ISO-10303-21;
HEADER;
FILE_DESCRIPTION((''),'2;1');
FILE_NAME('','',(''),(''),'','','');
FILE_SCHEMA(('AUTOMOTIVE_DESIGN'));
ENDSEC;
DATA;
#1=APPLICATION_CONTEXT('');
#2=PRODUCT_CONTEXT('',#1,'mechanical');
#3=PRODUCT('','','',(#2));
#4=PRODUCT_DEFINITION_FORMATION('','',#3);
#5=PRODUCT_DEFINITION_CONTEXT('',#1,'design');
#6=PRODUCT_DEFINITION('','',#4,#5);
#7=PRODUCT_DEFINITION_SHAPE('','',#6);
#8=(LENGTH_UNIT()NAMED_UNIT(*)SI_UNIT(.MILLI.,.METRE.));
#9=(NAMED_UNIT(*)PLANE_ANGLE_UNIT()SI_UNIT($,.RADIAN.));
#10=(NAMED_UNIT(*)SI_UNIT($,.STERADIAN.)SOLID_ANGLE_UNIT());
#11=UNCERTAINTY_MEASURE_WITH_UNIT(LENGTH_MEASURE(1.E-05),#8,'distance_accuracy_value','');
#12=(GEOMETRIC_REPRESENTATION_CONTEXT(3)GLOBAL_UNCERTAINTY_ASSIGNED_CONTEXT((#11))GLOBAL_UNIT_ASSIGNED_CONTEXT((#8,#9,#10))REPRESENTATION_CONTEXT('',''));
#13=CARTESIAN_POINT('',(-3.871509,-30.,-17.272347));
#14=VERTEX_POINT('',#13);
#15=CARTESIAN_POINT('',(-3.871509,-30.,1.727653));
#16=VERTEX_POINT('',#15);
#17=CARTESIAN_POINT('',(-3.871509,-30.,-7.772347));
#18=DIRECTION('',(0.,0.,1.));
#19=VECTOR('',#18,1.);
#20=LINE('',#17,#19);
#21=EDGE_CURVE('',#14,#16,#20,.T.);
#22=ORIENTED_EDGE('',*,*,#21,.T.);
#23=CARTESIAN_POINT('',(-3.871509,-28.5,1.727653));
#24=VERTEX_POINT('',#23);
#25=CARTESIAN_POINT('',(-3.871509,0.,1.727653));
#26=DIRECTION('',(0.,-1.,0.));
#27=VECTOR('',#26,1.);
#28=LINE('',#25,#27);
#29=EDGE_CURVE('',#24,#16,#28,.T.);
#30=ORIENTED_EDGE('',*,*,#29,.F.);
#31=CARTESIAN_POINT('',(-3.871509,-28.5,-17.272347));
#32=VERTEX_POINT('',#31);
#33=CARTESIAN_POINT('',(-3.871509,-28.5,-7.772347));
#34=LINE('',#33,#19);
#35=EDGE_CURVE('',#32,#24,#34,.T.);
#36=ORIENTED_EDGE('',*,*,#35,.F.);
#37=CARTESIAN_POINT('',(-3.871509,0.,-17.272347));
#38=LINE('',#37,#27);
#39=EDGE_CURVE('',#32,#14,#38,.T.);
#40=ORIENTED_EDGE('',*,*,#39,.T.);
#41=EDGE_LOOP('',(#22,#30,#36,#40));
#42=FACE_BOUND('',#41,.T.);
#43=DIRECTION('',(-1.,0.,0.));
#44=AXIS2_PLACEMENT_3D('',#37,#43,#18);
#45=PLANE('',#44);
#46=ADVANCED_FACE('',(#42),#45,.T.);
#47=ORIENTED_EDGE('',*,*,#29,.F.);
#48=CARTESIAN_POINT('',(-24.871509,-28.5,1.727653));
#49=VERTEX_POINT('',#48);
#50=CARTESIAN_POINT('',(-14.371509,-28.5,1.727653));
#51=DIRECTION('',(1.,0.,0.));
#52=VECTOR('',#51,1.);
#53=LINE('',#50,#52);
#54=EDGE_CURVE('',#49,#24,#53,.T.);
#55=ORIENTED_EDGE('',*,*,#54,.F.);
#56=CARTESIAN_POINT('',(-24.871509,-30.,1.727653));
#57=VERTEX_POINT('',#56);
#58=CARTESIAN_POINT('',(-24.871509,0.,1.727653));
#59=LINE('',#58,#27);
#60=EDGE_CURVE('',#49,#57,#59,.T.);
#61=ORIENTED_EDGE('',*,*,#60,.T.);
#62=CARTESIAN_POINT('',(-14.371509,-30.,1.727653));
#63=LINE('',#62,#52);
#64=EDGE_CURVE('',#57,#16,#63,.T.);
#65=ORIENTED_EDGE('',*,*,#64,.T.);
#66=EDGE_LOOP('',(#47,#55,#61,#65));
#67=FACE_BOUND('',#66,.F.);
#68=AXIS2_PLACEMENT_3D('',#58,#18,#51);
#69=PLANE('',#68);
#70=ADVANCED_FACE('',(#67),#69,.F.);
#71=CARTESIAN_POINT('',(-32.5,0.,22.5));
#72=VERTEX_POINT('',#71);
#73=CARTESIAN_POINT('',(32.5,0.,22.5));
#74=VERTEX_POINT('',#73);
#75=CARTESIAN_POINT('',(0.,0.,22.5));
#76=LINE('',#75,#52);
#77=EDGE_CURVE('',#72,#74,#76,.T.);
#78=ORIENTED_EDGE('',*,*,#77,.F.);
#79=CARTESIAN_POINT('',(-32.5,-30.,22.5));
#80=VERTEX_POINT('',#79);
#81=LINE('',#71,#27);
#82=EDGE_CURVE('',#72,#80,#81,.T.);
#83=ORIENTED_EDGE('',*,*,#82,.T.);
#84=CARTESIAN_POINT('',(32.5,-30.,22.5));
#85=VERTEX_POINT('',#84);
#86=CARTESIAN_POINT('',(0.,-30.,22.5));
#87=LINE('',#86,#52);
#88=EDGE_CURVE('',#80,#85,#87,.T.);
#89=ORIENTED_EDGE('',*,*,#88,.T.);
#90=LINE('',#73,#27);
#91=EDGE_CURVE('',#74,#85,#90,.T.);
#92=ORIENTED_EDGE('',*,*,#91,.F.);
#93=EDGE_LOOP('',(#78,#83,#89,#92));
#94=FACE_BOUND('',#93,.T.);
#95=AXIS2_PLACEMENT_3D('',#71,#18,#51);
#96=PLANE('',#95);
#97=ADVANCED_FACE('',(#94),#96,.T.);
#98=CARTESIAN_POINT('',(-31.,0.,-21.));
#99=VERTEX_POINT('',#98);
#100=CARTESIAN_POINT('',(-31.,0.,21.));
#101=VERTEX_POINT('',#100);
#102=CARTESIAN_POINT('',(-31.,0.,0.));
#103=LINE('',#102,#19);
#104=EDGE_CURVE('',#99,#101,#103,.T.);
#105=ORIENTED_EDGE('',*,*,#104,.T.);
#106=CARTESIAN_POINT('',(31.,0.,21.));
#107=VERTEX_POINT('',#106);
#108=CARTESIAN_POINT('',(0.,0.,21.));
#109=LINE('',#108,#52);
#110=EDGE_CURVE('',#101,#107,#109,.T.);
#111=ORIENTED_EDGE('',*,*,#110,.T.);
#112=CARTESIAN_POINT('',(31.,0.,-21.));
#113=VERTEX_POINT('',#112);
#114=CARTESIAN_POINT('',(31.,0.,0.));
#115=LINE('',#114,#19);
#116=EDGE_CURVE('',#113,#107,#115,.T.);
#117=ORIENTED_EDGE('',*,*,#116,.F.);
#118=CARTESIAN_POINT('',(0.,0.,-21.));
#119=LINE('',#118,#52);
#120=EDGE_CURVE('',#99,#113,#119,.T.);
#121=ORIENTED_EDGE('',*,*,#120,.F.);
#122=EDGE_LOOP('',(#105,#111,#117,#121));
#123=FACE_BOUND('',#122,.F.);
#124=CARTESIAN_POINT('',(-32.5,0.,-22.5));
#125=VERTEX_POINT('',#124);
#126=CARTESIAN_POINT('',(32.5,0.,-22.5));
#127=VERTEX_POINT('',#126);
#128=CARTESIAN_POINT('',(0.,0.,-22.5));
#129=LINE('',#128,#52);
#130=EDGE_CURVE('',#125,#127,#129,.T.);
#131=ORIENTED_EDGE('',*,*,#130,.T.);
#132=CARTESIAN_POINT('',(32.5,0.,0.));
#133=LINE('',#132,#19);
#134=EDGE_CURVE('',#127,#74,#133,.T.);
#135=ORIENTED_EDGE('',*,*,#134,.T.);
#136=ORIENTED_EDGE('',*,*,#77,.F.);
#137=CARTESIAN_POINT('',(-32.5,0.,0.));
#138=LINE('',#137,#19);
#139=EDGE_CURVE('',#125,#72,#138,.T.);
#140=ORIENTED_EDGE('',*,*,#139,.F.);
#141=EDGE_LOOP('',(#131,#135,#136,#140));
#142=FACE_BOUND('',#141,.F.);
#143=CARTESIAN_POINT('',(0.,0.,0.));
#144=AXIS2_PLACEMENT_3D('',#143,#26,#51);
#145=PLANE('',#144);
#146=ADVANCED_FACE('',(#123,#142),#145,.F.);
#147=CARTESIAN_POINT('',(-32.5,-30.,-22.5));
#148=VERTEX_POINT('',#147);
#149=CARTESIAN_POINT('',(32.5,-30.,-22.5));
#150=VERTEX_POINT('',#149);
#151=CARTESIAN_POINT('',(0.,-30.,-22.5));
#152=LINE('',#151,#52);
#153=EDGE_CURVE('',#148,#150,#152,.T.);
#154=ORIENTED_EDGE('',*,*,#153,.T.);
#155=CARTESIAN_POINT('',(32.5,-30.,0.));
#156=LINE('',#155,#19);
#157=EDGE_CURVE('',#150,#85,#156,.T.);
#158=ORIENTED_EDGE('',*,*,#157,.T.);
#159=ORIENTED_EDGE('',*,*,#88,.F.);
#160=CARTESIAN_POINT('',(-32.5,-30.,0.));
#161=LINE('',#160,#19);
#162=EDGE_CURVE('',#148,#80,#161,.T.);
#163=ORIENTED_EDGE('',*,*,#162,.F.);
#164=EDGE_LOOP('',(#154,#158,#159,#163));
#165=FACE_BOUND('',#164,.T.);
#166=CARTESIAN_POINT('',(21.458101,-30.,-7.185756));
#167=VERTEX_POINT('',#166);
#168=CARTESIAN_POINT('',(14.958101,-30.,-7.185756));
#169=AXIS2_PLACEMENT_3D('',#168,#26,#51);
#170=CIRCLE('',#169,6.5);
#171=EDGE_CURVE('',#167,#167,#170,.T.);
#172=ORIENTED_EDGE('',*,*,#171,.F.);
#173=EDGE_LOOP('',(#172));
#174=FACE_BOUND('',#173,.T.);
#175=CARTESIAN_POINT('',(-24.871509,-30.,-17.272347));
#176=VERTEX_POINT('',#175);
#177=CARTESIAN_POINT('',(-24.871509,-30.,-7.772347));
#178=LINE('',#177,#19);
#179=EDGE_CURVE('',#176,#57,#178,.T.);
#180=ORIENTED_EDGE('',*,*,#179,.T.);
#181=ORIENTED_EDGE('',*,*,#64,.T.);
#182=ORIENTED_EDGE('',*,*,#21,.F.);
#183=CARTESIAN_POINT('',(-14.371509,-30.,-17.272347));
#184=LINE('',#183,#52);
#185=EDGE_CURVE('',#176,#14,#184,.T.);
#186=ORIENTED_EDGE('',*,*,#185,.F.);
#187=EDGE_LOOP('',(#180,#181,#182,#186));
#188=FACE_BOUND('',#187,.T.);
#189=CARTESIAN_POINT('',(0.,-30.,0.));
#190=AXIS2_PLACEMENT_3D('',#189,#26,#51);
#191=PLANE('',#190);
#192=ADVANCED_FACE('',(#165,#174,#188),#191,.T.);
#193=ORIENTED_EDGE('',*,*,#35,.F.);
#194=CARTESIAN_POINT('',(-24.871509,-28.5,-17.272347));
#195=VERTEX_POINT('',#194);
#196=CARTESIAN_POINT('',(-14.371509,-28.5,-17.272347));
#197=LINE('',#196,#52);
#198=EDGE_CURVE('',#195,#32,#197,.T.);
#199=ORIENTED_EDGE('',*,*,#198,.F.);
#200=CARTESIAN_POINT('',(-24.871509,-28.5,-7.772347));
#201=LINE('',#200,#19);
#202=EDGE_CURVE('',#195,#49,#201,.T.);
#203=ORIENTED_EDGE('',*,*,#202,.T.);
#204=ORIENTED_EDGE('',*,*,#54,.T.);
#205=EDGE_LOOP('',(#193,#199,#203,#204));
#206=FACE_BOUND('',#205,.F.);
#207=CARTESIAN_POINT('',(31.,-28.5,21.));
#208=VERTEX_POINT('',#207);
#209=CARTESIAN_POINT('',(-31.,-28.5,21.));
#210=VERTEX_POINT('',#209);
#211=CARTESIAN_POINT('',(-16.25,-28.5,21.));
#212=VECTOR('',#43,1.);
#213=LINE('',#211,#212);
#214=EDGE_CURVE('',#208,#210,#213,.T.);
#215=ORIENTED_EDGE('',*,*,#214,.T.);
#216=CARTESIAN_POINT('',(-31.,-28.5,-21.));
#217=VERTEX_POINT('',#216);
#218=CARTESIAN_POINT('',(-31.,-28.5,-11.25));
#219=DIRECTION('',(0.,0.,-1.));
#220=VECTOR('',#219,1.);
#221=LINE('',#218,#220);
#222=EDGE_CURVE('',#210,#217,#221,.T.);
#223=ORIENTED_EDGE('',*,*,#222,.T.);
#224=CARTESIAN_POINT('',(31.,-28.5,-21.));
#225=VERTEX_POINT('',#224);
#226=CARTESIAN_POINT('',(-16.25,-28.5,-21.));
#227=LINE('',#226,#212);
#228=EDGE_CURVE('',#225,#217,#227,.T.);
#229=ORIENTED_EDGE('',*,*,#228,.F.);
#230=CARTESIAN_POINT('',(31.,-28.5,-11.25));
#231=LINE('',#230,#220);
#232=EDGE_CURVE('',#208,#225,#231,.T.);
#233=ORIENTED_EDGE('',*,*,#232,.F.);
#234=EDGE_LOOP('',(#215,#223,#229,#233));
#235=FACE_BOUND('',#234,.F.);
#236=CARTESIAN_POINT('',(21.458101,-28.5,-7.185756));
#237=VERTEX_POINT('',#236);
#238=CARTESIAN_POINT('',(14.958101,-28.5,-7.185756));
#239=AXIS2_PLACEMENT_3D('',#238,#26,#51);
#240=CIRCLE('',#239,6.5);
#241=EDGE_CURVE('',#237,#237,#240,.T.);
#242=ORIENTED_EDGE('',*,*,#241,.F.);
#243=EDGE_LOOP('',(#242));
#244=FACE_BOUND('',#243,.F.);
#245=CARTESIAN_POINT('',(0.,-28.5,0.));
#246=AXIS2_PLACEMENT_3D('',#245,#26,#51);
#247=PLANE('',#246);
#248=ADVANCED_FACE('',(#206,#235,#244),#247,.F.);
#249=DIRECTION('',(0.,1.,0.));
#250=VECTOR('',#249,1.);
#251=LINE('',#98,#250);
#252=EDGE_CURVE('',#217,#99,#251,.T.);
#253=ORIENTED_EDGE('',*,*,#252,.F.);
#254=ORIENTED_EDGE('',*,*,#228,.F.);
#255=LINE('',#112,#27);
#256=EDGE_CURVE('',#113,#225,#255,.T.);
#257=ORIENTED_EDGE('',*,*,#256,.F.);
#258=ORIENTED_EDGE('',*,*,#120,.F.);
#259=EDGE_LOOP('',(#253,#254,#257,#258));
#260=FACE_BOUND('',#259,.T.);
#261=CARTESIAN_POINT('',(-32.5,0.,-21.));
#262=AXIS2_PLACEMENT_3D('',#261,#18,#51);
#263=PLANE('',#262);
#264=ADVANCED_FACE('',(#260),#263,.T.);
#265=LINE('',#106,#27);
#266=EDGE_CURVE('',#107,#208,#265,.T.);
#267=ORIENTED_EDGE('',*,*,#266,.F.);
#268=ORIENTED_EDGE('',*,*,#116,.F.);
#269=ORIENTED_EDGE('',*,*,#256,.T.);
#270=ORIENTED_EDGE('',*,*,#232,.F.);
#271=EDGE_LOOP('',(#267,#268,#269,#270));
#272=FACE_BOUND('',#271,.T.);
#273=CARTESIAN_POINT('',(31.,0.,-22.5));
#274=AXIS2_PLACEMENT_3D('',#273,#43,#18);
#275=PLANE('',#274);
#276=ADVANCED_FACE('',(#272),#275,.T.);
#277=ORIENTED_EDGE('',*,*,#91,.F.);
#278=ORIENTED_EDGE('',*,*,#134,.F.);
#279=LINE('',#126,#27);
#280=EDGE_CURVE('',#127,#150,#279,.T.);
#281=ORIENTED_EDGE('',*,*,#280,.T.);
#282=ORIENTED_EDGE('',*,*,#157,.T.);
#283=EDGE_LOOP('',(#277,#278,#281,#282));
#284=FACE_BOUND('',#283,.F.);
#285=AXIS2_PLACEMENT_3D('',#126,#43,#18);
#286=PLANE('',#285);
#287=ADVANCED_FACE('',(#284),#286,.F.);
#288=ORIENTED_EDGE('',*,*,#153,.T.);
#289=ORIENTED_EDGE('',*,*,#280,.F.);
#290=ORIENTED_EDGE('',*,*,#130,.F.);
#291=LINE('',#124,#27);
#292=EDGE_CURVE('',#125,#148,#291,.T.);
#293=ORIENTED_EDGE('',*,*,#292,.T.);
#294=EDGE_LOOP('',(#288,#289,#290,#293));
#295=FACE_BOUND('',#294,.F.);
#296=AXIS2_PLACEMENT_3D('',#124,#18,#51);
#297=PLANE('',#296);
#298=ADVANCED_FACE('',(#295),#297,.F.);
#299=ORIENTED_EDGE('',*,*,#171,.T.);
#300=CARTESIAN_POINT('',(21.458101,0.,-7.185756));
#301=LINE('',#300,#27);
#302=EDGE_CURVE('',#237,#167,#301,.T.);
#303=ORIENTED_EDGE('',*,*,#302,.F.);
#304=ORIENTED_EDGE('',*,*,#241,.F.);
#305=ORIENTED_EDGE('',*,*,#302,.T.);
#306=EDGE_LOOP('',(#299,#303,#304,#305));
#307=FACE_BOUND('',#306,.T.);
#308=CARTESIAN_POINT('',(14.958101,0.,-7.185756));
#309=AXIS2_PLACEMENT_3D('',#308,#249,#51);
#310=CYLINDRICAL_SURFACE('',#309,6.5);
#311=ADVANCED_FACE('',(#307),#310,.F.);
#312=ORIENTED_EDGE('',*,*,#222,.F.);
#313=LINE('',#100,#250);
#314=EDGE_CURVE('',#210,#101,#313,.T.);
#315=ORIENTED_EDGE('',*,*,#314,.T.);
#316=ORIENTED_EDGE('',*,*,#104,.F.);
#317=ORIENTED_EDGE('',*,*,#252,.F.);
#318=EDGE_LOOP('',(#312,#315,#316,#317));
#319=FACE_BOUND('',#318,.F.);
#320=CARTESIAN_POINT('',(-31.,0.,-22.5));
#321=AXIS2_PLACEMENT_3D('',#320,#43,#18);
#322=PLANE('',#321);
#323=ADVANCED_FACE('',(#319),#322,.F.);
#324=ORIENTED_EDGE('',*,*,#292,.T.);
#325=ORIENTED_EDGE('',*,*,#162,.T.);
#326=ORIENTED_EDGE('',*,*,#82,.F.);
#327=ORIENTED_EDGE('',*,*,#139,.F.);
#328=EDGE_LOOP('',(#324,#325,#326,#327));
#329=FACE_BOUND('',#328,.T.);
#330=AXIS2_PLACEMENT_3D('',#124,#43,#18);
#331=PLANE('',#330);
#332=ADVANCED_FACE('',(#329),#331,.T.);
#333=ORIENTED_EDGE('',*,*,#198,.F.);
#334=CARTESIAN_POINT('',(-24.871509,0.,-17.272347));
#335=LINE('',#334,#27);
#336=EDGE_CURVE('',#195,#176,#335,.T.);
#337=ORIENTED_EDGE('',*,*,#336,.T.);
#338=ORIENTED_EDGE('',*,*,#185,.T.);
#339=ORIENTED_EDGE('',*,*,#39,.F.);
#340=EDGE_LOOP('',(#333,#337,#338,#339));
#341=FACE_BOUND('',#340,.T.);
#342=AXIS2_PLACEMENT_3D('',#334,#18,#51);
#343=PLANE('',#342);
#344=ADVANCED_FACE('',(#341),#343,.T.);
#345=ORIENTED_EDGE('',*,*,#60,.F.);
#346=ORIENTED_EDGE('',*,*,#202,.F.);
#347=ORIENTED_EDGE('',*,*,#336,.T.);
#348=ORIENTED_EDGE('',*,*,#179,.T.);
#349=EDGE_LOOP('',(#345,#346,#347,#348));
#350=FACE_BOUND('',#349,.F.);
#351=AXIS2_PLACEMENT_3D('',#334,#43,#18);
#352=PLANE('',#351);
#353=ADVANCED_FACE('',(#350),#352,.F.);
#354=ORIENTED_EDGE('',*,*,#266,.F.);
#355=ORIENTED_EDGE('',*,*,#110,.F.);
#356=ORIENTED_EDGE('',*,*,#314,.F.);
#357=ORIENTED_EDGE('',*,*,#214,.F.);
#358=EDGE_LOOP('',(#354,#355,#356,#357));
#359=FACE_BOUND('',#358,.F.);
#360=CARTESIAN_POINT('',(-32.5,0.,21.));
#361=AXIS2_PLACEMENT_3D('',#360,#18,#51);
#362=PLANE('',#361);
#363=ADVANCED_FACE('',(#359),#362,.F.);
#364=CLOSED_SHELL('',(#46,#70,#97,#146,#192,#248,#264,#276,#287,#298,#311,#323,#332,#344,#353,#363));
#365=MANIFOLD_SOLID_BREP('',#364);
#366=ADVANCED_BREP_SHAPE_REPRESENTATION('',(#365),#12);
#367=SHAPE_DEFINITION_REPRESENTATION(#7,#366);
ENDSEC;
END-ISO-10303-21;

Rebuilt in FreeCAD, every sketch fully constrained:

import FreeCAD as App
import Part
import Sketcher
from FreeCAD import Vector


def faces_at(feature, points):
    """Names of the faces that lie closest to the given points."""
    faces = feature.Shape.Faces
    near = lambda p: min(range(len(faces)), key=lambda i: faces[i].distToShape(Part.Vertex(*p))[0])
    return sorted({f"Face{near(p) + 1}" for p in points})


def add_polygon(sketch, points):
    """Adds a closed chain of lines whose ends are joined by coincident constraints."""
    first, n = sketch.GeometryCount, len(points)
    for a, b in zip(points, points[1:] + points[:1]):
        sketch.addGeometry(Part.LineSegment(App.Vector(*a, 0), App.Vector(*b, 0)), False)
    for i in range(n):
        sketch.addConstraint(Sketcher.Constraint("Coincident", first + i, 2, first + (i + 1) % n, 1))

doc = App.newDocument("Part")
params = doc.addObject("Spreadsheet::Sheet", "Params")
for row, (alias, value) in enumerate([
    ("sketch1_diameter", "13 mm"),
    ("sketch1_width", "65 mm"),
    ("sketch1_width2", "21 mm"),
    ("sketch1_height", "45 mm"),
    ("sketch1_height2", "19 mm"),
    ("pad1_length", "30 mm"),
    ("thickness_wall", "1.5 mm"),
], start=1):
    params.set(f"A{row}", alias)
    params.set(f"B{row}", "=" + value)
    params.setAlias(f"B{row}", alias)

body = doc.addObject("PartDesign::Body", "Body")

sketch1 = body.newObject("Sketcher::SketchObject", "Sketch")
sketch1.AttachmentSupport = (doc.getObject("XZ_Plane"), [""])
sketch1.MapMode = "FlatFace"
add_polygon(sketch1, [(-32, 22), (-32, -22), (32, -22), (32, 22)])
add_polygon(sketch1, [(-4, -17), (-25, -17), (-25, 2), (-4, 2)])
sketch1.addGeometry(Part.Circle(Vector(15, -7, 0), Vector(0, 0, 1), 6), False)
sketch1.addConstraint(Sketcher.Constraint("Vertical", 0))
sketch1.addConstraint(Sketcher.Constraint("Horizontal", 1))
sketch1.addConstraint(Sketcher.Constraint("Vertical", 2))
sketch1.addConstraint(Sketcher.Constraint("Horizontal", 3))
sketch1.addConstraint(Sketcher.Constraint("Horizontal", 4))
sketch1.addConstraint(Sketcher.Constraint("Vertical", 5))
sketch1.addConstraint(Sketcher.Constraint("Horizontal", 6))
sketch1.addConstraint(Sketcher.Constraint("Vertical", 7))
sketch1.addConstraint(Sketcher.Constraint("Symmetric", 0, 2, 2, 2, -1, 1))
sketch1.addConstraint(Sketcher.Constraint("Diameter", 8, 13.0))
sketch1.addConstraint(Sketcher.Constraint("DistanceX", 1, 1, 1, 2, 65.0))
sketch1.addConstraint(Sketcher.Constraint("DistanceX", 4, 2, 4, 1, 21.0))
sketch1.addConstraint(Sketcher.Constraint("DistanceY", 0, 2, 0, 1, 45.0))
sketch1.addConstraint(Sketcher.Constraint("DistanceY", 5, 1, 5, 2, 19.0))
sketch1.addConstraint(Sketcher.Constraint("DistanceX", -1, 1, 8, 3, 14.958101))
sketch1.addConstraint(Sketcher.Constraint("DistanceX", 4, 2, -1, 1, 24.871509))
sketch1.addConstraint(Sketcher.Constraint("DistanceY", 4, 2, 8, 3, 10.086591))
sketch1.addConstraint(Sketcher.Constraint("DistanceY", 8, 3, -1, 1, 7.185756))
sketch1.setExpression("Constraints[17]", "Params.sketch1_diameter")
sketch1.setExpression("Constraints[18]", "Params.sketch1_width")
sketch1.setExpression("Constraints[19]", "Params.sketch1_width2")
sketch1.setExpression("Constraints[20]", "Params.sketch1_height")
sketch1.setExpression("Constraints[21]", "Params.sketch1_height2")
pad1 = body.newObject("PartDesign::Pad", "Pad")
pad1.Profile = sketch1
pad1.setExpression("Length", "Params.pad1_length")
doc.recompute()

thickness = body.newObject("PartDesign::Thickness", "Thickness")
thickness.Base = (pad1, faces_at(pad1, [
    (0, 0, 0),
    (-3.872, -15, -7.772),
    (8.458, -15, -7.186),
    (-24.872, -15, -7.772),
    (-14.372, -15, 1.728),
    (-14.372, -15, -17.272),
]))
thickness.setExpression("Value", "Params.thickness_wall")
thickness.Reversed = True
thickness.Join = "Arc"

doc.recompute()
